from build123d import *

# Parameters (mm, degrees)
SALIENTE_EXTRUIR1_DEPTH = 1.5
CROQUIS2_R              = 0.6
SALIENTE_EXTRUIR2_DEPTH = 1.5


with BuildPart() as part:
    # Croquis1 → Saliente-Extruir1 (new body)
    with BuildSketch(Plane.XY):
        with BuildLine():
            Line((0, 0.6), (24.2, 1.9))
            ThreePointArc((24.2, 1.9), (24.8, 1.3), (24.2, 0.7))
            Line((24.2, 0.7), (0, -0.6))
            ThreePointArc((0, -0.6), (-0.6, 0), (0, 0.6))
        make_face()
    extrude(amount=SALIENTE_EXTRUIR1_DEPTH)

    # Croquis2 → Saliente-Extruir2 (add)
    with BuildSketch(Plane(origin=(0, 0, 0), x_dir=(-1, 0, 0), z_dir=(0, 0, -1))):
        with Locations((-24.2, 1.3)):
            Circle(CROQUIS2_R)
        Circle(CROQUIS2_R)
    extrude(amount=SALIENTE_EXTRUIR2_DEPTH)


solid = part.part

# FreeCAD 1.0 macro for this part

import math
import FreeCAD as App
import Part
import Sketcher

V = App.Vector
Q = App.Units.Quantity

doc = App.newDocument("Part")
params = doc.addObject("Spreadsheet::Sheet", "Params")
for row, (alias, value) in enumerate([
    ("sketch1_radius", "0.6 mm"),
    ("pad1_length", "1.5 mm"),
    ("sketch2_diameter", "1.2 mm"),
    ("pad2_length", "1.5 mm"),
], start=1):
    params.set(f"A{row}", alias)
    params.set(f"B{row}", "=" + value)
    params.setAlias(f"B{row}", alias)

body = doc.addObject("PartDesign::Body", "Body")

# Sketch on XY plane
sketch1 = body.newObject("Sketcher::SketchObject", "Sketch")
sketch1.AttachmentSupport = (doc.getObject("XY_Plane"), [""])
sketch1.MapMode = "FlatFace"
sketch1.addGeometry(Part.LineSegment(V(24.2, 1.9, 0), V(0, 0.6, 0)), False)
sketch1.addGeometry(Part.ArcOfCircle(Part.Circle(V(0, 0, 0), V(0, 0, 1), 0.6), math.radians(90), math.radians(270)), False)
sketch1.addGeometry(Part.LineSegment(V(0, -0.6, 0), V(24.2, 0.7, 0)), False)
sketch1.addGeometry(Part.ArcOfCircle(Part.Circle(V(24.2, 1.3, 0), V(0, 0, 1), 0.6), math.radians(-90), math.radians(90)), False)
sketch1.addConstraint(Sketcher.Constraint("Coincident", 0, 2, 1, 1))
sketch1.addConstraint(Sketcher.Constraint("Coincident", 1, 2, 2, 1))
sketch1.addConstraint(Sketcher.Constraint("Coincident", 2, 2, 3, 1))
sketch1.addConstraint(Sketcher.Constraint("Coincident", 3, 2, 0, 1))
sketch1.addConstraint(Sketcher.Constraint("Coincident", 1, 3, -1, 1))
sketch1.addConstraint(Sketcher.Constraint("Equal", 1, 3))
sketch1.addConstraint(Sketcher.Constraint("PointOnObject", 0, 2, -2))
sketch1.addConstraint(Sketcher.Constraint("PointOnObject", 1, 2, -2))
sketch1.addConstraint(Sketcher.Constraint("Parallel", 0, 2))
sketch1.addConstraint(Sketcher.Constraint("Vertical", 3, 3, 2, 2))
sketch1.addConstraint(Sketcher.Constraint("Radius", 1, Q("0.6 mm")))
sketch1.addConstraint(Sketcher.Constraint("DistanceX", -1, 1, 3, 3, Q("24.2 mm")))
sketch1.addConstraint(Sketcher.Constraint("DistanceY", -1, 1, 3, 3, Q("1.3 mm")))
sketch1.setExpression("Constraints[10]", "Params.sketch1_radius")
pad1 = body.newObject("PartDesign::Pad", "Pad")
pad1.Profile = sketch1
pad1.setExpression("Length", "Params.pad1_length")

# Sketch on XY plane
sketch2 = body.newObject("Sketcher::SketchObject", "Sketch001")
sketch2.AttachmentSupport = (doc.getObject("XY_Plane"), [""])
sketch2.MapMode = "FlatFace"
sketch2.addGeometry(Part.Circle(V(24.2, 1.3, 0), V(0, 0, 1), 0.6), False)
sketch2.addGeometry(Part.Circle(V(0, 0, 0), V(0, 0, 1), 0.6), False)
sketch2.addConstraint(Sketcher.Constraint("Coincident", 1, 3, -1, 1))
sketch2.addConstraint(Sketcher.Constraint("Equal", 0, 1))
sketch2.addConstraint(Sketcher.Constraint("Diameter", 0, Q("1.2 mm")))
sketch2.addConstraint(Sketcher.Constraint("DistanceX", -1, 1, 0, 3, Q("24.2 mm")))
sketch2.addConstraint(Sketcher.Constraint("DistanceY", -1, 1, 0, 3, Q("1.3 mm")))
sketch2.setExpression("Constraints[2]", "Params.sketch2_diameter")
pad2 = body.newObject("PartDesign::Pad", "Pad001")
pad2.Profile = sketch2
pad2.setExpression("Length", "Params.pad2_length")
pad2.Reversed = True

doc.recompute()
